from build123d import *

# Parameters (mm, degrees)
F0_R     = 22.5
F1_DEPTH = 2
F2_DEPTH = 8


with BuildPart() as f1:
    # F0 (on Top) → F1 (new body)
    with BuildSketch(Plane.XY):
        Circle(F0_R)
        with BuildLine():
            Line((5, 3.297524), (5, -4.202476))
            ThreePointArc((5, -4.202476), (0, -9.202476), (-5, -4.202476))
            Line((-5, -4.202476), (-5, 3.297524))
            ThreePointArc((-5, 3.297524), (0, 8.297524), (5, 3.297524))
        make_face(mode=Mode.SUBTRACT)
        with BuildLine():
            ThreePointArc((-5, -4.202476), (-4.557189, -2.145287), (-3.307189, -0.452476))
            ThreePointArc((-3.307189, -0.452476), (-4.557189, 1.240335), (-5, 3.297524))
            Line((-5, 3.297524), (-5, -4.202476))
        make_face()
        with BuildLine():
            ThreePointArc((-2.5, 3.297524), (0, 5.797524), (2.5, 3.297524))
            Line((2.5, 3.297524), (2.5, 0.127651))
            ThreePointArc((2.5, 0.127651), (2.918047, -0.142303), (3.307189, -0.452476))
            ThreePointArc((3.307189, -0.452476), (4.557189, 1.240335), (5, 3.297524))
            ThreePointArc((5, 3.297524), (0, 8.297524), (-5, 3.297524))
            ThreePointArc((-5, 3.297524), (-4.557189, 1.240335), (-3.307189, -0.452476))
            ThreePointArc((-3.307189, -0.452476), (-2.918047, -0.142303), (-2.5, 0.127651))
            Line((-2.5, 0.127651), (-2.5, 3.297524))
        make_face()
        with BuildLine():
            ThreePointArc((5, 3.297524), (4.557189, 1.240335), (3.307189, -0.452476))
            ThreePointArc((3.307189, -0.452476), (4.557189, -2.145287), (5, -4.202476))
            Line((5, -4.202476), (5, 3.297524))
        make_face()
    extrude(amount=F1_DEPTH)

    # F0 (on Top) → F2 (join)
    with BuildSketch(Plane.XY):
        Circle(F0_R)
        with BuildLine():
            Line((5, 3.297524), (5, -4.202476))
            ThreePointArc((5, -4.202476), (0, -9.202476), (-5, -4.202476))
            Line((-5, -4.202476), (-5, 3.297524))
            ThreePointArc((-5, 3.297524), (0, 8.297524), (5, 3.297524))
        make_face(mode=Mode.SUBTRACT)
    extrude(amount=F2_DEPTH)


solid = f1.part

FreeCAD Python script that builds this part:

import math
import FreeCAD as App
import Part
import Sketcher
Q = App.Units.Quantity

doc = App.newDocument("Part")
body = doc.addObject("PartDesign::Body", "Body")

sketch1 = body.newObject("Sketcher::SketchObject", "Sketch")
sketch1.AttachmentSupport = (doc.getObject("XY_Plane"), [""])
sketch1.MapMode = "FlatFace"
sketch1.addGeometry(Part.Circle(App.Vector(0, 0, 0), App.Vector(0, 0, 1), 22.5), False)
sketch1.addGeometry(Part.ArcOfCircle(Part.Circle(App.Vector(0, -4.2, 0), App.Vector(0, 0, 1), 5), math.radians(180), math.radians(360)), False)
sketch1.addGeometry(Part.ArcOfCircle(Part.Circle(App.Vector(0, -4.2, 0), App.Vector(0, 0, 1), 5), math.radians(131), math.radians(180)), False)
sketch1.addGeometry(Part.ArcOfCircle(Part.Circle(App.Vector(0, -4.2, 0), App.Vector(0, 0, 1), 5), math.radians(120), math.radians(131.41)), False)
sketch1.addGeometry(Part.LineSegment(App.Vector(-2.5, 0.1, 0), App.Vector(-2.5, 3.3, 0)), False)
sketch1.addGeometry(Part.ArcOfCircle(Part.Circle(App.Vector(0, 3.3, 0), App.Vector(0, 0, 1), 2.5), math.radians(0), math.radians(180)), False)
sketch1.addGeometry(Part.LineSegment(App.Vector(2.5, 3.3, 0), App.Vector(2.5, 0.1, 0)), False)
sketch1.addGeometry(Part.ArcOfCircle(Part.Circle(App.Vector(0, -4.2, 0), App.Vector(0, 0, 1), 5), math.radians(48.59), math.radians(60)), False)
sketch1.addGeometry(Part.ArcOfCircle(Part.Circle(App.Vector(0, -4.2, 0), App.Vector(0, 0, 1), 5), math.radians(0), math.radians(49)), False)
sketch1.addConstraint(Sketcher.Constraint("Tangent", 1, 1, 2, 2))
sketch1.addConstraint(Sketcher.Constraint("Tangent", 2, 1, 3, 2))
sketch1.addConstraint(Sketcher.Constraint("Coincident", 3, 1, 4, 1))
sketch1.addConstraint(Sketcher.Constraint("Tangent", 4, 2, 5, 2))
sketch1.addConstraint(Sketcher.Constraint("Tangent", 5, 1, 6, 1))
sketch1.addConstraint(Sketcher.Constraint("Coincident", 6, 2, 7, 2))
sketch1.addConstraint(Sketcher.Constraint("Tangent", 7, 1, 8, 2))
sketch1.addConstraint(Sketcher.Constraint("Tangent", 8, 1, 1, 2))
sketch1.addConstraint(Sketcher.Constraint("Vertical", 4))
sketch1.addConstraint(Sketcher.Constraint("Vertical", 6))
sketch1.addConstraint(Sketcher.Constraint("Coincident", 0, 3, -1, 1))
sketch1.addConstraint(Sketcher.Constraint("Equal", 1, 2))
sketch1.addConstraint(Sketcher.Constraint("Equal", 3, 7))
sketch1.addConstraint(Sketcher.Constraint("Equal", 2, 8))
sketch1.addConstraint(Sketcher.Constraint("Symmetric", 3, 1, 6, 2, -2))
sketch1.addConstraint(Sketcher.Constraint("Horizontal", 8, 3, 1, 1))
sketch1.addConstraint(Sketcher.Constraint("Horizontal", 2, 1, 7, 1))
sketch1.addConstraint(Sketcher.Constraint("Horizontal", 1, 1, 8, 1))
sketch1.addConstraint(Sketcher.Constraint("Diameter", 0, Q("45 mm")))
sketch1.addConstraint(Sketcher.Constraint("Radius", 1, Q("5 mm")))
sketch1.addConstraint(Sketcher.Constraint("Radius", 5, Q("2.5 mm")))
sketch1.addConstraint(Sketcher.Constraint("DistanceY", 1, 3, 5, 3, Q("7.5 mm")))
sketch1.addConstraint(Sketcher.Constraint("DistanceY", 1, 1, 2, 1, Q("3.75 mm")))
sketch1.addConstraint(Sketcher.Constraint("Radius", 3, Q("4.999927 mm")))
sketch1.addConstraint(Sketcher.Constraint("DistanceY", -1, 1, 3, 1, Q("0.127651 mm")))
pad1 = body.newObject("PartDesign::Pad", "Pad")
pad1.Profile = sketch1
pad1.Length = 2

sketch2 = body.newObject("Sketcher::SketchObject", "Sketch001")
sketch2.AttachmentSupport = (doc.getObject("XY_Plane"), [""])
sketch2.MapMode = "FlatFace"
sketch2.addGeometry(Part.Circle(App.Vector(0, 0, 0), App.Vector(0, 0, 1), 22), False)
sketch2.addGeometry(Part.ArcOfCircle(Part.Circle(App.Vector(0, 3, 0), App.Vector(0, 0, 1), 5), math.radians(0), math.radians(180)), False)
sketch2.addGeometry(Part.LineSegment(App.Vector(5, 3, 0), App.Vector(5, -4, 0)), False)
sketch2.addGeometry(Part.ArcOfCircle(Part.Circle(App.Vector(0, -4, 0), App.Vector(0, 0, 1), 5), math.radians(180), math.radians(360)), False)
sketch2.addGeometry(Part.LineSegment(App.Vector(-5, -4, 0), App.Vector(-5, 3, 0)), False)
sketch2.addConstraint(Sketcher.Constraint("Tangent", 1, 1, 2, 1))
sketch2.addConstraint(Sketcher.Constraint("Tangent", 2, 2, 3, 2))
sketch2.addConstraint(Sketcher.Constraint("Tangent", 3, 1, 4, 1))
sketch2.addConstraint(Sketcher.Constraint("Tangent", 4, 2, 1, 2))
sketch2.addConstraint(Sketcher.Constraint("Vertical", 2))
sketch2.addConstraint(Sketcher.Constraint("Vertical", 4))
sketch2.addConstraint(Sketcher.Constraint("Coincident", 0, 3, -1, 1))
sketch2.addConstraint(Sketcher.Constraint("PointOnObject", 1, 3, -2))
sketch2.addConstraint(Sketcher.Constraint("Diameter", 0, Q("45 mm")))
sketch2.addConstraint(Sketcher.Constraint("Radius", 1, Q("5 mm")))
sketch2.addConstraint(Sketcher.Constraint("DistanceY", 2, 2, 2, 1, Q("7.5 mm")))
sketch2.addConstraint(Sketcher.Constraint("DistanceY", -1, 1, 1, 3, Q("3.297524 mm")))
pad2 = body.newObject("PartDesign::Pad", "Pad001")
pad2.Profile = sketch2
pad2.Length = 8

doc.recompute()
